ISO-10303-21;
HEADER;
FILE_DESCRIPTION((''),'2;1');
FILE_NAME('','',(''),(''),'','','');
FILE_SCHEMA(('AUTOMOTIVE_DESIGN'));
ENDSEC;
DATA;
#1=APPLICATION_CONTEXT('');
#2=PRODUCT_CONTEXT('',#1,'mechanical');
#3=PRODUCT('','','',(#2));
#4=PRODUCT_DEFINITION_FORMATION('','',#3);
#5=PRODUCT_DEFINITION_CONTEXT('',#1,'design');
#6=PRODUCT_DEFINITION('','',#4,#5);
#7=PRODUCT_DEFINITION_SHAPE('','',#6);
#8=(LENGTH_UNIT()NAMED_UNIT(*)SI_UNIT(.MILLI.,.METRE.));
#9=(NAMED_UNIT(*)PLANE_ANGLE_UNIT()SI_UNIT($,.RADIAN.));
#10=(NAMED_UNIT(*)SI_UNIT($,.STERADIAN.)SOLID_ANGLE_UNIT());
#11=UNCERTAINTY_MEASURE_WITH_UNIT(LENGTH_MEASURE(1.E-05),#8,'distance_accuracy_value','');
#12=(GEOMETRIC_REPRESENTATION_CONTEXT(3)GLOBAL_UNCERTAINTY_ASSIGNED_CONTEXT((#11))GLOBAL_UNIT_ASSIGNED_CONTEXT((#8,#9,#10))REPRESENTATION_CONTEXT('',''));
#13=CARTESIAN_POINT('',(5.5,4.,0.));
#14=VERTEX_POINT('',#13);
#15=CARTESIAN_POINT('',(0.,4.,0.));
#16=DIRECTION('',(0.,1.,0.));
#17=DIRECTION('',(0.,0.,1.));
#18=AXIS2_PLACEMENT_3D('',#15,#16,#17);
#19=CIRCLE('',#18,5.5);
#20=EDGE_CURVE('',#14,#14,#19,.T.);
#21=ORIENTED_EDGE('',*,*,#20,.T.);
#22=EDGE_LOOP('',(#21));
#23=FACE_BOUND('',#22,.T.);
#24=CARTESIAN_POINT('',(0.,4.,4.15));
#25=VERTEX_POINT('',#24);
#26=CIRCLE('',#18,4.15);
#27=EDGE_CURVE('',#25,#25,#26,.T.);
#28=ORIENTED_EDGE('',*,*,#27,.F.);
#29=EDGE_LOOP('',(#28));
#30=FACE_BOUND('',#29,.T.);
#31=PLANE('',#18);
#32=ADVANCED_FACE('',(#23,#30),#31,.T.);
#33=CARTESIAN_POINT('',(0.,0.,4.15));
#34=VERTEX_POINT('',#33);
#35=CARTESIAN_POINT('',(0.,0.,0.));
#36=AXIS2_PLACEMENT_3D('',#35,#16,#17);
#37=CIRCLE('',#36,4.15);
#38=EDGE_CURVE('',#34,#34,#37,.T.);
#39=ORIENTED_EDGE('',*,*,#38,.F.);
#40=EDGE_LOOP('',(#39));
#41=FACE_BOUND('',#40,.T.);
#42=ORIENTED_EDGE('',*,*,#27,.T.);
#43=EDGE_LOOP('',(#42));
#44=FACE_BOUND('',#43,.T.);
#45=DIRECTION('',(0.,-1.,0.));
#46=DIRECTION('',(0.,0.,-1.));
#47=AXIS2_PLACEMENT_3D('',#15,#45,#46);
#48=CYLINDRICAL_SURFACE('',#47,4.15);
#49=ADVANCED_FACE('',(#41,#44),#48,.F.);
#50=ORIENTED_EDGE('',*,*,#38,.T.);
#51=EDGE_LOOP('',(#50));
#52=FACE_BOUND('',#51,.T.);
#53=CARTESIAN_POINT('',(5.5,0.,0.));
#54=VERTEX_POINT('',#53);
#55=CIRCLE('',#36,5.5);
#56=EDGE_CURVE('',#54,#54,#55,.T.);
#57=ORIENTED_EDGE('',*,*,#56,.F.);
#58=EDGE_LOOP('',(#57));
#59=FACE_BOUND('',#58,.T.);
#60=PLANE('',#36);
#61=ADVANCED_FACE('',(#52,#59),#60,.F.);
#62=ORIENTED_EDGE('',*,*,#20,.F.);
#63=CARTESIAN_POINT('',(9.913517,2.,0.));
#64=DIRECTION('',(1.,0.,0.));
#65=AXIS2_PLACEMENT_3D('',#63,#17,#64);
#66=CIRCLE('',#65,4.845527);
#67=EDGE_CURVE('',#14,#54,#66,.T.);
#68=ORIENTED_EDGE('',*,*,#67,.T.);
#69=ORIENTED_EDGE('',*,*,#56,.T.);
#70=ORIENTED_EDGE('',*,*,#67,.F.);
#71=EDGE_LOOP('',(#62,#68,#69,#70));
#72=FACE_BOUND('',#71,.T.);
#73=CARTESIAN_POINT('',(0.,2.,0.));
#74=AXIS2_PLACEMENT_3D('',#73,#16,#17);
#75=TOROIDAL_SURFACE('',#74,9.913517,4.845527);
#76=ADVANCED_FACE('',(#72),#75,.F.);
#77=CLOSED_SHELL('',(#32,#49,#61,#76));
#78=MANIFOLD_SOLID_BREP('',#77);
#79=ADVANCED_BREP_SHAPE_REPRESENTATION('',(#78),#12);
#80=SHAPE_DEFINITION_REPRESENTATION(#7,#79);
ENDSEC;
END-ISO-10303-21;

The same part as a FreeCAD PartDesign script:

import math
import FreeCAD as App
import Part
import Sketcher
from FreeCAD import Vector

doc = App.newDocument("Part")
body = doc.addObject("PartDesign::Body", "Body")

# Sketch on XZ plane
sketch1 = body.newObject("Sketcher::SketchObject", "Sketch")
sketch1.AttachmentSupport = (doc.getObject("XZ_Plane"), [""])
sketch1.MapMode = "FlatFace"
sketch1.addGeometry(Part.Circle(Vector(0, 0, 0), Vector(0, 0, 1), 6), False)
sketch1.addConstraint(Sketcher.Constraint("Coincident", 0, 3, -1, 1))
sketch1.addConstraint(Sketcher.Constraint("Diameter", 0, 11.0))
pad1 = body.newObject("PartDesign::Pad", "Pad")
pad1.Profile = sketch1
pad1.Length = 4
pad1.Reversed = True

# Sketch on XZ plane
sketch2 = body.newObject("Sketcher::SketchObject", "Sketch001")
sketch2.AttachmentSupport = (doc.getObject("XZ_Plane"), [""])
sketch2.MapMode = "FlatFace"
sketch2.addGeometry(Part.Circle(Vector(0, 0, 0), Vector(0, 0, 1), 4.2), False)
sketch2.addConstraint(Sketcher.Constraint("Coincident", 0, 3, -1, 1))
sketch2.addConstraint(Sketcher.Constraint("Diameter", 0, 8.3))
pocket1 = body.newObject("PartDesign::Pocket", "Pocket")
pocket1.Profile = sketch2
pocket1.Type = "ThroughAll"

# Sketch on XY plane
sketch3 = body.newObject("Sketcher::SketchObject", "Sketch002")
sketch3.AttachmentSupport = (doc.getObject("XY_Plane"), [""])
sketch3.MapMode = "FlatFace"
sketch3.addGeometry(Part.LineSegment(Vector(5.5, 0, 0), Vector(5.5, 4, 0)), False)
sketch3.addGeometry(Part.ArcOfCircle(Part.Circle(Vector(9.9, 2, 0), Vector(0, 0, 1), 4.8), math.radians(156), math.radians(204)), False)
sketch3.addConstraint(Sketcher.Constraint("Coincident", 0, 1, 1, 2))
sketch3.addConstraint(Sketcher.Constraint("Coincident", 1, 1, 0, 2))
sketch3.addConstraint(Sketcher.Constraint("Vertical", 0))
sketch3.addConstraint(Sketcher.Constraint("PointOnObject", 0, 1, -1))
sketch3.addConstraint(Sketcher.Constraint("DistanceY", 0, 1, 0, 2, 4.0))
sketch3.addConstraint(Sketcher.Constraint("DistanceX", -1, 1, 0, 1, 5.5))
sketch3.addConstraint(Sketcher.Constraint("Radius", 1, 4.845527))

# Sketch on XZ plane
sketch4 = body.newObject("Sketcher::SketchObject", "Sketch003")
sketch4.AttachmentSupport = (doc.getObject("XZ_Plane"), [""])
sketch4.MapMode = "FlatFace"
sketch4.addGeometry(Part.Circle(Vector(0, 0, 0), Vector(0, 0, 1), 6), False)
sketch4.addConstraint(Sketcher.Constraint("Coincident", 0, 3, -1, 1))
sketch4.addConstraint(Sketcher.Constraint("Diameter", 0, 11.0))
doc.recompute()

subtractivepipe = body.newObject("PartDesign::SubtractivePipe", "SubtractivePipe")
subtractivepipe.Profile = sketch3
subtractivepipe.Spine = (sketch4, ["Edge1"])

doc.recompute()
